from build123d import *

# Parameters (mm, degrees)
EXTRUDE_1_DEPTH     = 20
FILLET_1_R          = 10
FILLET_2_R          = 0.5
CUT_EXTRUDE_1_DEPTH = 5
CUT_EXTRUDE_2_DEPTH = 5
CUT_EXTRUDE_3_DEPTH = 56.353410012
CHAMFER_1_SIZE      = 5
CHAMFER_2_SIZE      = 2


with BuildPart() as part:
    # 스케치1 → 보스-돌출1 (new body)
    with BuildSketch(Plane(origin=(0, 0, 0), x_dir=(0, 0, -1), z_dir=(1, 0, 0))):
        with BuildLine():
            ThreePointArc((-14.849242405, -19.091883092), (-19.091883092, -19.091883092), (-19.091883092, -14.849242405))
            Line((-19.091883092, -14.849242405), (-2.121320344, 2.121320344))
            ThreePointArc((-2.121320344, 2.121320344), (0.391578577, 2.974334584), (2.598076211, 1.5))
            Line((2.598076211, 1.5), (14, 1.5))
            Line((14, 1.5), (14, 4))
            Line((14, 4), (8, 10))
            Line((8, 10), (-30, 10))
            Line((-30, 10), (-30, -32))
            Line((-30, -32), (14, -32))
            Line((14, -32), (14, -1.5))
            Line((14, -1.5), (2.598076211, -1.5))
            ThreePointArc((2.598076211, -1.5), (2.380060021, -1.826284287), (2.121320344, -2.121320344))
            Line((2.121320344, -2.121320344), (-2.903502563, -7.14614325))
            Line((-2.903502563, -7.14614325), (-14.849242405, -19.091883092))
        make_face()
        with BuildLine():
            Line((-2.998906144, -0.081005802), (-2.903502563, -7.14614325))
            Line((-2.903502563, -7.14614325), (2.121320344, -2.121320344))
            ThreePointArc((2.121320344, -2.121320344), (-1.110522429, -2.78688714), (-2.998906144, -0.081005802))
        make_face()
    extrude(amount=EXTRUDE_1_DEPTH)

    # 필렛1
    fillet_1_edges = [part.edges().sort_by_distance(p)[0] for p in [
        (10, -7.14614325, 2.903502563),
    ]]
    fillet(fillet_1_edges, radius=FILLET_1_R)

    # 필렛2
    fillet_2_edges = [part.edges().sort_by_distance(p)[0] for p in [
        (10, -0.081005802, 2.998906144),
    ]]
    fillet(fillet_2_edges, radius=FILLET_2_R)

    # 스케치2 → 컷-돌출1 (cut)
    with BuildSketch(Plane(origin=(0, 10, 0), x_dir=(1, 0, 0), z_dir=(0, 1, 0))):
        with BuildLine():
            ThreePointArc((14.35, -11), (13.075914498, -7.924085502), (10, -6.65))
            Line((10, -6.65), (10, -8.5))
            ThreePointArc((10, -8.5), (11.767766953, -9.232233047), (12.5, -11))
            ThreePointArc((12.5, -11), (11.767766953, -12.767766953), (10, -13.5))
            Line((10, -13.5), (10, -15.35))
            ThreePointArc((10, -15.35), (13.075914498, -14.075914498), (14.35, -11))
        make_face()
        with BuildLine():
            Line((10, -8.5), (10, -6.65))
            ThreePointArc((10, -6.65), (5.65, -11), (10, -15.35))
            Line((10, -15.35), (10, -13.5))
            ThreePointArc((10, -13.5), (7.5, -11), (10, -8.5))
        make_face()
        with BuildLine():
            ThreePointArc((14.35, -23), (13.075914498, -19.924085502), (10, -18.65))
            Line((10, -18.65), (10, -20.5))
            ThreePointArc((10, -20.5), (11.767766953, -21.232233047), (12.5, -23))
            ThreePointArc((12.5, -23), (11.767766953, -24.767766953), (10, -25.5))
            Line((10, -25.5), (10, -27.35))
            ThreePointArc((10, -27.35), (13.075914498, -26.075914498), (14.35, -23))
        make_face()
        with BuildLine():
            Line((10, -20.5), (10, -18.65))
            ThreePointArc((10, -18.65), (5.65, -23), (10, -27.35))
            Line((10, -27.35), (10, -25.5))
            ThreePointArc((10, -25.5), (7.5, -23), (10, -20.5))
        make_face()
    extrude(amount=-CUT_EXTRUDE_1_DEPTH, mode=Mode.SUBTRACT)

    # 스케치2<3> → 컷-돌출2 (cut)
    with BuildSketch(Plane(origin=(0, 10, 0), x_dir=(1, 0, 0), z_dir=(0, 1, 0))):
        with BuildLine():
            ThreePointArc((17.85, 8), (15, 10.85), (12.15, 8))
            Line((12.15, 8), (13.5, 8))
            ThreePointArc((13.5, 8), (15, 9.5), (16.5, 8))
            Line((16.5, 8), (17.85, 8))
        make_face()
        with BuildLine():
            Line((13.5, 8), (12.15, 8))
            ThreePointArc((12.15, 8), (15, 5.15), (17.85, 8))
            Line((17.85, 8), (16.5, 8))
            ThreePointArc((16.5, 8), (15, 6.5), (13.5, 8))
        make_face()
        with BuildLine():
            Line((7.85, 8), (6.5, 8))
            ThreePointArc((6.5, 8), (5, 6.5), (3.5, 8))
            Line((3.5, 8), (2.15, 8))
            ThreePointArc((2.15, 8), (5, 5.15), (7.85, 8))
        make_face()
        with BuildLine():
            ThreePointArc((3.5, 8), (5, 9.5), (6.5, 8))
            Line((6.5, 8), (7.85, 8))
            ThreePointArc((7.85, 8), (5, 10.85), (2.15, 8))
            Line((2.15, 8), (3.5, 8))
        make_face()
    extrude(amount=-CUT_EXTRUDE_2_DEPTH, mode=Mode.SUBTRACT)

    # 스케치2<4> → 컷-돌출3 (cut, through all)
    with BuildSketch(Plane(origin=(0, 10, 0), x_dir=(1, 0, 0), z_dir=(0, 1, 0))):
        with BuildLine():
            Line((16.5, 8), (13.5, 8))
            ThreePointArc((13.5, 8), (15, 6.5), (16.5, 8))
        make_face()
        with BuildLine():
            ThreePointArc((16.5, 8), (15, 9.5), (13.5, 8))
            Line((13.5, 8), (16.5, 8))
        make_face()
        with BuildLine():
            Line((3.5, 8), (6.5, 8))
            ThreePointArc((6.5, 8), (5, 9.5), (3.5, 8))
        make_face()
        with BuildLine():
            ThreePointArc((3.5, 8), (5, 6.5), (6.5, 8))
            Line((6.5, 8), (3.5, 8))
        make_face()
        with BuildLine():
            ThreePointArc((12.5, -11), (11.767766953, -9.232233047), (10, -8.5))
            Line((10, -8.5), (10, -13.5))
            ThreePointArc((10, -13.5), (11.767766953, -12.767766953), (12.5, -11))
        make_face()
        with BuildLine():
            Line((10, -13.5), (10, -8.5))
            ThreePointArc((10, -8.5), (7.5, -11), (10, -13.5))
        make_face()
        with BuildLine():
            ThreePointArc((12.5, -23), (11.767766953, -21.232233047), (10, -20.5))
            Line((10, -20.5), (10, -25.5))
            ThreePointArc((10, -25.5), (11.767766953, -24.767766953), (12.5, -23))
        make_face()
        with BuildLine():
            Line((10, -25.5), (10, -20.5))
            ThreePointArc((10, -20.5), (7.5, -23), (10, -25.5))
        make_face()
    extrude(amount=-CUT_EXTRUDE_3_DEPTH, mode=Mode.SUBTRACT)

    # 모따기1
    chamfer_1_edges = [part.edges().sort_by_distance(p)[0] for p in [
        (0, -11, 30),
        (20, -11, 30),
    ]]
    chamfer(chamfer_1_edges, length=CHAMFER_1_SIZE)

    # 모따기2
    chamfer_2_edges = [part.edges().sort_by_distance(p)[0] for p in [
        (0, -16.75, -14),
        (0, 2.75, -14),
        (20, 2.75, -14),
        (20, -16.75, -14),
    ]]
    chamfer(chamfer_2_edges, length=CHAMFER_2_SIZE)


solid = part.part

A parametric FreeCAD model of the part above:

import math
import FreeCAD as App
import Part
import Sketcher
Q = App.Units.Quantity


def edges_at(feature, points):
    """Names of the edges that pass closest to the given points."""
    edges = feature.Shape.Edges
    near = lambda p: min(range(len(edges)), key=lambda i: edges[i].distToShape(Part.Vertex(*p))[0])
    return sorted({f"Edge{near(p) + 1}" for p in points})

doc = App.newDocument("Part")
body = doc.addObject("PartDesign::Body", "Body")

# Sketch on YZ plane
sketch1 = doc.addObject("Sketcher::SketchObject", "Sketch")
body.addObject(sketch1)
sketch1.AttachmentSupport = (doc.YZ_Plane, [""])
sketch1.MapMode = "FlatFace"
sketch1.addGeometry([
    Part.ArcOfCircle(Part.Circle(App.Vector(-17, 17, 0), App.Vector(0, 0, 1), 3), math.radians(45), math.radians(225)),  # 0
    Part.LineSegment(App.Vector(-14.8, 19.1, 0), App.Vector(2.1, 2.1, 0)),  # 1
    Part.ArcOfCircle(Part.Circle(App.Vector(0, 0, 0), App.Vector(0, 0, 1), 3), math.radians(-60), math.radians(45)),  # 2
    Part.LineSegment(App.Vector(1.5, -2.6, 0), App.Vector(1.5, -14, 0)),  # 3
    Part.LineSegment(App.Vector(1.5, -14, 0), App.Vector(4, -14, 0)),  # 4
    Part.LineSegment(App.Vector(4, -14, 0), App.Vector(10, -8, 0)),  # 5
    Part.LineSegment(App.Vector(10, -8, 0), App.Vector(10, 30, 0)),  # 6
    Part.LineSegment(App.Vector(10, 30, 0), App.Vector(-32, 30, 0)),  # 7
    Part.LineSegment(App.Vector(-32, 30, 0), App.Vector(-32, -14, 0)),  # 8
    Part.LineSegment(App.Vector(-32, -14, 0), App.Vector(-1.5, -14, 0)),  # 9
    Part.LineSegment(App.Vector(-1.5, -14, 0), App.Vector(-1.5, -2.6, 0)),  # 10
    Part.ArcOfCircle(Part.Circle(App.Vector(0, 0, 0), App.Vector(0, 0, 1), 3), math.radians(-135), math.radians(-120)),  # 11
    Part.ArcOfCircle(Part.Circle(App.Vector(0, 0, 0), App.Vector(0, 0, 1), 3), math.radians(92), math.radians(225)),  # 12
    Part.LineSegment(App.Vector(-0.1, 3, 0), App.Vector(-7.1, 2.9, 0)),  # 13
    Part.LineSegment(App.Vector(-7.1, 2.9, 0), App.Vector(-19.1, 14.8, 0)),  # 14
], False)
sketch1.addConstraint([
    Sketcher.Constraint("Tangent", 0, 1, 1, 1),
    Sketcher.Constraint("Tangent", 1, 2, 2, 2),
    Sketcher.Constraint("Coincident", 2, 1, 3, 1),
    Sketcher.Constraint("Coincident", 3, 2, 4, 1),
    Sketcher.Constraint("Coincident", 4, 2, 5, 1),
    Sketcher.Constraint("Coincident", 5, 2, 6, 1),
    Sketcher.Constraint("Coincident", 6, 2, 7, 1),
    Sketcher.Constraint("Coincident", 7, 2, 8, 1),
    Sketcher.Constraint("Coincident", 8, 2, 9, 1),
    Sketcher.Constraint("Coincident", 9, 2, 10, 1),
    Sketcher.Constraint("Coincident", 10, 2, 11, 2),
    Sketcher.Constraint("Tangent", 11, 1, 12, 2),
    Sketcher.Constraint("Coincident", 12, 1, 13, 1),
    Sketcher.Constraint("Coincident", 13, 2, 14, 1),
    Sketcher.Constraint("Tangent", 14, 2, 0, 2),
    Sketcher.Constraint("Vertical", 3),
    Sketcher.Constraint("Horizontal", 4),
    Sketcher.Constraint("Vertical", 6),
    Sketcher.Constraint("Horizontal", 7),
    Sketcher.Constraint("Vertical", 8),
    Sketcher.Constraint("Horizontal", 9),
    Sketcher.Constraint("Vertical", 10),
    Sketcher.Constraint("Coincident", 2, 3, -1, 1),
    Sketcher.Constraint("Coincident", 11, 3, -1, 1),
    Sketcher.Constraint("Equal", 0, 2),
    Sketcher.Constraint("Equal", 2, 11),
    Sketcher.Constraint("Equal", 11, 12),
    Sketcher.Constraint("Symmetric", 3, 2, 9, 2, -2),
    Sketcher.Constraint("Perpendicular", 1, 5),
    Sketcher.Constraint("Perpendicular", 5, 14),
    Sketcher.Constraint("Radius", 0, 3.0),
    Sketcher.Constraint("DistanceX", 7, 2, 7, 1, 42.0),
    Sketcher.Constraint("DistanceY", 6, 1, 6, 2, 38.0),
    Sketcher.Constraint("DistanceY", 8, 2, 8, 1, 44.0),
    Sketcher.Constraint("Angle", 1, Q("-45 deg")),
    Sketcher.Constraint("Distance", 1, 24.0),
    Sketcher.Constraint("DistanceX", 4, 1, 4, 2, 2.5),
    Sketcher.Constraint("DistanceX", 9, 1, 9, 2, 30.5),
    Sketcher.Constraint("DistanceY", 3, 2, -1, 1, 14.0),
    Sketcher.Constraint("Distance", 13, 7.065782),
    Sketcher.Constraint("DistanceX", 11, 1, -1, 1, 2.12132),
    Sketcher.Constraint("DistanceX", 14, 2, 13, 2, 11.94574),
])
pad1 = doc.addObject("PartDesign::Pad", "Pad")
body.addObject(pad1)
pad1.Profile = sketch1
pad1.Length = 20
doc.recompute()

fillet = doc.addObject("PartDesign::Fillet", "Fillet")
body.addObject(fillet)
fillet.Base = (pad1, edges_at(pad1, [(10, -7.146, 2.904)]))
fillet.Radius = 10
doc.recompute()

fillet2 = doc.addObject("PartDesign::Fillet", "Fillet001")
body.addObject(fillet2)
fillet2.Base = (fillet, edges_at(fillet, [(10, -0.081, 2.999)]))
fillet2.Radius = 0.5

# Sketch on XZ plane
sketch2 = doc.addObject("Sketcher::SketchObject", "Sketch001")
body.addObject(sketch2)
sketch2.AttachmentSupport = (doc.XZ_Plane, [""])
sketch2.MapMode = "FlatFace"
sketch2.AttachmentOffset = App.Placement(App.Vector(0, 0, -10), App.Rotation())
sketch2.addGeometry([
    Part.ArcOfCircle(Part.Circle(App.Vector(10, 11, 0), App.Vector(0, 0, 1), 4.4), math.radians(-90), math.radians(0)),  # 0
    Part.ArcOfCircle(Part.Circle(App.Vector(10, 11, 0), App.Vector(0, 0, 1), 4.3), math.radians(90), math.radians(270)),  # 1
    Part.ArcOfCircle(Part.Circle(App.Vector(10, 11, 0), App.Vector(0, 0, 1), 4.4), math.radians(0), math.radians(90)),  # 2
    Part.ArcOfCircle(Part.Circle(App.Vector(10, 11, 0), App.Vector(0, 0, 1), 2.5), math.radians(0), math.radians(90)),  # 3
    Part.ArcOfCircle(Part.Circle(App.Vector(10, 11, 0), App.Vector(0, 0, 1), 2.5), math.radians(90), math.radians(270)),  # 4
    Part.ArcOfCircle(Part.Circle(App.Vector(10, 11, 0), App.Vector(0, 0, 1), 2.5), math.radians(-90), math.radians(0)),  # 5
    Part.ArcOfCircle(Part.Circle(App.Vector(10, 23, 0), App.Vector(0, 0, 1), 4.4), math.radians(-90), math.radians(0)),  # 6
    Part.ArcOfCircle(Part.Circle(App.Vector(10, 23, 0), App.Vector(0, 0, 1), 4.3), math.radians(90), math.radians(270)),  # 7
    Part.ArcOfCircle(Part.Circle(App.Vector(10, 23, 0), App.Vector(0, 0, 1), 4.4), math.radians(0), math.radians(90)),  # 8
    Part.ArcOfCircle(Part.Circle(App.Vector(10, 23, 0), App.Vector(0, 0, 1), 2.5), math.radians(0), math.radians(90)),  # 9
    Part.ArcOfCircle(Part.Circle(App.Vector(10, 23, 0), App.Vector(0, 0, 1), 2.5), math.radians(90), math.radians(270)),  # 10
    Part.ArcOfCircle(Part.Circle(App.Vector(10, 23, 0), App.Vector(0, 0, 1), 2.5), math.radians(-90), math.radians(0)),  # 11
], False)
sketch2.addConstraint([
    Sketcher.Constraint("Tangent", 0, 1, 1, 2),
    Sketcher.Constraint("Tangent", 1, 1, 2, 2),
    Sketcher.Constraint("Tangent", 2, 1, 0, 2),
    Sketcher.Constraint("Tangent", 3, 2, 4, 1),
    Sketcher.Constraint("Tangent", 4, 2, 5, 1),
    Sketcher.Constraint("Tangent", 5, 2, 3, 1),
    Sketcher.Constraint("Tangent", 6, 1, 7, 2),
    Sketcher.Constraint("Tangent", 7, 1, 8, 2),
    Sketcher.Constraint("Tangent", 8, 1, 6, 2),
    Sketcher.Constraint("Tangent", 9, 2, 10, 1),
    Sketcher.Constraint("Tangent", 10, 2, 11, 1),
    Sketcher.Constraint("Tangent", 11, 2, 9, 1),
    Sketcher.Constraint("Coincident", 3, 3, 0, 3),
    Sketcher.Constraint("Coincident", 9, 3, 6, 3),
    Sketcher.Constraint("Equal", 2, 6),
    Sketcher.Constraint("Equal", 5, 9),
    Sketcher.Constraint("Horizontal", 5, 3, 2, 1),
    Sketcher.Constraint("Horizontal", 2, 1, 5, 2),
    Sketcher.Constraint("Horizontal", 11, 3, 8, 1),
    Sketcher.Constraint("Horizontal", 8, 1, 11, 2),
    Sketcher.Constraint("Vertical", 5, 3, 6, 3),
    Sketcher.Constraint("Vertical", 11, 3, 0, 1),
    Sketcher.Constraint("Vertical", 0, 1, 1, 1),
    Sketcher.Constraint("Vertical", 1, 1, 3, 2),
    Sketcher.Constraint("Vertical", 3, 2, 4, 2),
    Sketcher.Constraint("Vertical", 4, 2, 6, 1),
    Sketcher.Constraint("Vertical", 6, 1, 7, 1),
    Sketcher.Constraint("Vertical", 7, 1, 9, 2),
    Sketcher.Constraint("Vertical", 9, 2, 10, 2),
    Sketcher.Constraint("Radius", 3, 2.5),
    Sketcher.Constraint("Radius", 0, 4.35),
    Sketcher.Constraint("DistanceX", -1, 1, 0, 3, 10.0),
    Sketcher.Constraint("DistanceY", -1, 1, 0, 3, 11.0),
    Sketcher.Constraint("DistanceY", -1, 1, 6, 3, 23.0),
])
pocket1 = doc.addObject("PartDesign::Pocket", "Pocket")
body.addObject(pocket1)
pocket1.Profile = sketch2
pocket1.Length = 5
pocket1.Reversed = True

# Sketch on XZ plane
sketch3 = doc.addObject("Sketcher::SketchObject", "Sketch002")
body.addObject(sketch3)
sketch3.AttachmentSupport = (doc.XZ_Plane, [""])
sketch3.MapMode = "FlatFace"
sketch3.AttachmentOffset = App.Placement(App.Vector(0, 0, -10), App.Rotation())
sketch3.addGeometry([
    Part.Circle(App.Vector(15, -8, 0), App.Vector(0, 0, 1), 2.9),
    Part.Circle(App.Vector(15, -8, 0), App.Vector(0, 0, 1), 1.5),
    Part.Circle(App.Vector(5, -8, 0), App.Vector(0, 0, 1), 2.9),
    Part.Circle(App.Vector(5, -8, 0), App.Vector(0, 0, 1), 1.5),
], False)
sketch3.addConstraint([
    Sketcher.Constraint("Coincident", 1, 3, 0, 3),
    Sketcher.Constraint("Coincident", 3, 3, 2, 3),
    Sketcher.Constraint("Equal", 0, 2),
    Sketcher.Constraint("Equal", 1, 3),
    Sketcher.Constraint("Horizontal", 1, 3, 2, 3),
    Sketcher.Constraint("Diameter", 1, 3.0),
    Sketcher.Constraint("Diameter", 0, 5.7),
    Sketcher.Constraint("DistanceX", -1, 1, 0, 3, 15.0),
    Sketcher.Constraint("DistanceY", 0, 3, -1, 1, 8.0),
    Sketcher.Constraint("DistanceX", -1, 1, 2, 3, 5.0),
])
pocket2 = doc.addObject("PartDesign::Pocket", "Pocket001")
body.addObject(pocket2)
pocket2.Profile = sketch3
pocket2.Length = 5
pocket2.Reversed = True

# Sketch on XZ plane
sketch4 = doc.addObject("Sketcher::SketchObject", "Sketch003")
body.addObject(sketch4)
sketch4.AttachmentSupport = (doc.XZ_Plane, [""])
sketch4.MapMode = "FlatFace"
sketch4.AttachmentOffset = App.Placement(App.Vector(0, 0, -10), App.Rotation())
sketch4.addGeometry([
    Part.Circle(App.Vector(15, -8, 0), App.Vector(0, 0, 1), 1.5),  # 0
    Part.Circle(App.Vector(5, -8, 0), App.Vector(0, 0, 1), 1.5),  # 1
    Part.ArcOfCircle(Part.Circle(App.Vector(10, 11, 0), App.Vector(0, 0, 1), 2.5), math.radians(-90), math.radians(0)),  # 2
    Part.ArcOfCircle(Part.Circle(App.Vector(10, 11, 0), App.Vector(0, 0, 1), 2.5), math.radians(90), math.radians(270)),  # 3
    Part.ArcOfCircle(Part.Circle(App.Vector(10, 11, 0), App.Vector(0, 0, 1), 2.5), math.radians(0), math.radians(90)),  # 4
    Part.ArcOfCircle(Part.Circle(App.Vector(10, 23, 0), App.Vector(0, 0, 1), 2.5), math.radians(-90), math.radians(0)),  # 5
    Part.ArcOfCircle(Part.Circle(App.Vector(10, 23, 0), App.Vector(0, 0, 1), 2.5), math.radians(90), math.radians(270)),  # 6
    Part.ArcOfCircle(Part.Circle(App.Vector(10, 23, 0), App.Vector(0, 0, 1), 2.5), math.radians(0), math.radians(90)),  # 7
], False)
sketch4.addConstraint([
    Sketcher.Constraint("Tangent", 2, 1, 3, 2),
    Sketcher.Constraint("Tangent", 3, 1, 4, 2),
    Sketcher.Constraint("Tangent", 4, 1, 2, 2),
    Sketcher.Constraint("Tangent", 5, 1, 6, 2),
    Sketcher.Constraint("Tangent", 6, 1, 7, 2),
    Sketcher.Constraint("Tangent", 7, 1, 5, 2),
    Sketcher.Constraint("Equal", 0, 1),
    Sketcher.Constraint("Equal", 4, 5),
    Sketcher.Constraint("Horizontal", 0, 3, 1, 3),
    Sketcher.Constraint("Horizontal", 3, 3, 4, 1),
    Sketcher.Constraint("Horizontal", 6, 3, 7, 1),
    Sketcher.Constraint("Vertical", 4, 3, 5, 3),
    Sketcher.Constraint("Vertical", 7, 3, 2, 1),
    Sketcher.Constraint("Vertical", 2, 1, 3, 1),
    Sketcher.Constraint("Vertical", 3, 1, 5, 1),
    Sketcher.Constraint("Vertical", 5, 1, 6, 1),
    Sketcher.Constraint("Diameter", 0, 3.0),
    Sketcher.Constraint("Radius", 2, 2.5),
    Sketcher.Constraint("DistanceX", -1, 1, 0, 3, 15.0),
    Sketcher.Constraint("DistanceY", 0, 3, -1, 1, 8.0),
    Sketcher.Constraint("DistanceX", -1, 1, 1, 3, 5.0),
    Sketcher.Constraint("DistanceX", -1, 1, 2, 3, 10.0),
    Sketcher.Constraint("DistanceY", -1, 1, 2, 3, 11.0),
    Sketcher.Constraint("DistanceY", -1, 1, 5, 3, 23.0),
])
pocket3 = doc.addObject("PartDesign::Pocket", "Pocket002")
body.addObject(pocket3)
pocket3.Profile = sketch4
pocket3.Type = "ThroughAll"
pocket3.Reversed = True
doc.recompute()

chamfer = doc.addObject("PartDesign::Chamfer", "Chamfer")
body.addObject(chamfer)
chamfer.Base = (pocket3, edges_at(pocket3, [(0, -11, 30), (20, -11, 30)]))
chamfer.Size = 5
doc.recompute()

chamfer2 = doc.addObject("PartDesign::Chamfer", "Chamfer001")
body.addObject(chamfer2)
chamfer2.Base = (chamfer, edges_at(chamfer, [
    (0, -16.75, -14),
    (0, 2.75, -14),
    (20, 2.75, -14),
    (20, -16.75, -14),
]))
chamfer2.Size = 2

doc.recompute()
